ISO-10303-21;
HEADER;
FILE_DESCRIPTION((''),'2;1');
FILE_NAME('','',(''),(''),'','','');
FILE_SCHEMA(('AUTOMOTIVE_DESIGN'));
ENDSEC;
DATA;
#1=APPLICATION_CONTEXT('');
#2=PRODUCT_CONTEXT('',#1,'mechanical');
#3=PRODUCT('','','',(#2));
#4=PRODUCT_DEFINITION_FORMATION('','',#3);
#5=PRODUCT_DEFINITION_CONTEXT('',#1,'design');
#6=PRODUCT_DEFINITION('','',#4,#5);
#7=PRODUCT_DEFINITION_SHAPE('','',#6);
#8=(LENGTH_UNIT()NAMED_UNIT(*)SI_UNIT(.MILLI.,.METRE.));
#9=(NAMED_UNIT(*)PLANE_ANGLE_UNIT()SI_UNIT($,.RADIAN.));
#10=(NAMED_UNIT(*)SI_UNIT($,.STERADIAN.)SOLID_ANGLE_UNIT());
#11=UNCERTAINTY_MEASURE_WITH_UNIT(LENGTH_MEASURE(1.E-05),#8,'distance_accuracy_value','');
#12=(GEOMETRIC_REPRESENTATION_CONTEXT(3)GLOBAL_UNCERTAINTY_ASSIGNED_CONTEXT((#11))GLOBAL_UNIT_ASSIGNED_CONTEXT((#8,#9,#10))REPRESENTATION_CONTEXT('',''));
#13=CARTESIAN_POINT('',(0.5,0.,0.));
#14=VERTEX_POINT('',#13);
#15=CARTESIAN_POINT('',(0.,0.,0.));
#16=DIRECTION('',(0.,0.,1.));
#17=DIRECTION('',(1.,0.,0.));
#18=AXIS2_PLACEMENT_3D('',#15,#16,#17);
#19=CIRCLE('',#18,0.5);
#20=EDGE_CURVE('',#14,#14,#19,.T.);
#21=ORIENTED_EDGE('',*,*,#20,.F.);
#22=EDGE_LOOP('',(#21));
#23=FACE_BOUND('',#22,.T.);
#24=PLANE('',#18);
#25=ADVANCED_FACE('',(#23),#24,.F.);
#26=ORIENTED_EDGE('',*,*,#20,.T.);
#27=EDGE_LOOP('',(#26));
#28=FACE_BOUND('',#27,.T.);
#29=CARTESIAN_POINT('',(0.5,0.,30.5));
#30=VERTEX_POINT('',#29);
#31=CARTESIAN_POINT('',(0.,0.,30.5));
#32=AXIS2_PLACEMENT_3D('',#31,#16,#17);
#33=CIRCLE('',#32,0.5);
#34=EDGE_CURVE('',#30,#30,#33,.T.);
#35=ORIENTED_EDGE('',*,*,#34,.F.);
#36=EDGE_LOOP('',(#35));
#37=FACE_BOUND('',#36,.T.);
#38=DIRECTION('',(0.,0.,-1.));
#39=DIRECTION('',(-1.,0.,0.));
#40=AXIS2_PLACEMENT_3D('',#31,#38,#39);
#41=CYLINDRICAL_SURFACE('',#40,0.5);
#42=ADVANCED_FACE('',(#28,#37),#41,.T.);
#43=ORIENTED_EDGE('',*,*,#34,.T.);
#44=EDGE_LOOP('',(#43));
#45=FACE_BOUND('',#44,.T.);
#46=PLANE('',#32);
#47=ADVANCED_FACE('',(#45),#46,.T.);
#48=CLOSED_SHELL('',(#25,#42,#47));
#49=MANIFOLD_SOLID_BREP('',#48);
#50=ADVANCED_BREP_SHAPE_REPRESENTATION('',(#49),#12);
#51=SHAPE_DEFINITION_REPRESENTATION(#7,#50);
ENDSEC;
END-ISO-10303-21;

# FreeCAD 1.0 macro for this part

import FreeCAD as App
import Part
import Sketcher

doc = App.newDocument("Part")
body = doc.addObject("PartDesign::Body", "Body")

# Sketch on XY plane
sketch1 = body.newObject("Sketcher::SketchObject", "Sketch")
sketch1.AttachmentSupport = (doc.getObject("XY_Plane"), [""])
sketch1.MapMode = "FlatFace"
sketch1.addGeometry(Part.Circle(App.Vector(0, 0, 0), App.Vector(0, 0, 1), 0.5), False)
sketch1.addConstraint(Sketcher.Constraint("Coincident", 0, 3, -1, 1))
sketch1.addConstraint(Sketcher.Constraint("Diameter", 0, 1.0))
pad1 = body.newObject("PartDesign::Pad", "Pad")
pad1.Profile = sketch1
pad1.Length = 30.5

doc.recompute()
